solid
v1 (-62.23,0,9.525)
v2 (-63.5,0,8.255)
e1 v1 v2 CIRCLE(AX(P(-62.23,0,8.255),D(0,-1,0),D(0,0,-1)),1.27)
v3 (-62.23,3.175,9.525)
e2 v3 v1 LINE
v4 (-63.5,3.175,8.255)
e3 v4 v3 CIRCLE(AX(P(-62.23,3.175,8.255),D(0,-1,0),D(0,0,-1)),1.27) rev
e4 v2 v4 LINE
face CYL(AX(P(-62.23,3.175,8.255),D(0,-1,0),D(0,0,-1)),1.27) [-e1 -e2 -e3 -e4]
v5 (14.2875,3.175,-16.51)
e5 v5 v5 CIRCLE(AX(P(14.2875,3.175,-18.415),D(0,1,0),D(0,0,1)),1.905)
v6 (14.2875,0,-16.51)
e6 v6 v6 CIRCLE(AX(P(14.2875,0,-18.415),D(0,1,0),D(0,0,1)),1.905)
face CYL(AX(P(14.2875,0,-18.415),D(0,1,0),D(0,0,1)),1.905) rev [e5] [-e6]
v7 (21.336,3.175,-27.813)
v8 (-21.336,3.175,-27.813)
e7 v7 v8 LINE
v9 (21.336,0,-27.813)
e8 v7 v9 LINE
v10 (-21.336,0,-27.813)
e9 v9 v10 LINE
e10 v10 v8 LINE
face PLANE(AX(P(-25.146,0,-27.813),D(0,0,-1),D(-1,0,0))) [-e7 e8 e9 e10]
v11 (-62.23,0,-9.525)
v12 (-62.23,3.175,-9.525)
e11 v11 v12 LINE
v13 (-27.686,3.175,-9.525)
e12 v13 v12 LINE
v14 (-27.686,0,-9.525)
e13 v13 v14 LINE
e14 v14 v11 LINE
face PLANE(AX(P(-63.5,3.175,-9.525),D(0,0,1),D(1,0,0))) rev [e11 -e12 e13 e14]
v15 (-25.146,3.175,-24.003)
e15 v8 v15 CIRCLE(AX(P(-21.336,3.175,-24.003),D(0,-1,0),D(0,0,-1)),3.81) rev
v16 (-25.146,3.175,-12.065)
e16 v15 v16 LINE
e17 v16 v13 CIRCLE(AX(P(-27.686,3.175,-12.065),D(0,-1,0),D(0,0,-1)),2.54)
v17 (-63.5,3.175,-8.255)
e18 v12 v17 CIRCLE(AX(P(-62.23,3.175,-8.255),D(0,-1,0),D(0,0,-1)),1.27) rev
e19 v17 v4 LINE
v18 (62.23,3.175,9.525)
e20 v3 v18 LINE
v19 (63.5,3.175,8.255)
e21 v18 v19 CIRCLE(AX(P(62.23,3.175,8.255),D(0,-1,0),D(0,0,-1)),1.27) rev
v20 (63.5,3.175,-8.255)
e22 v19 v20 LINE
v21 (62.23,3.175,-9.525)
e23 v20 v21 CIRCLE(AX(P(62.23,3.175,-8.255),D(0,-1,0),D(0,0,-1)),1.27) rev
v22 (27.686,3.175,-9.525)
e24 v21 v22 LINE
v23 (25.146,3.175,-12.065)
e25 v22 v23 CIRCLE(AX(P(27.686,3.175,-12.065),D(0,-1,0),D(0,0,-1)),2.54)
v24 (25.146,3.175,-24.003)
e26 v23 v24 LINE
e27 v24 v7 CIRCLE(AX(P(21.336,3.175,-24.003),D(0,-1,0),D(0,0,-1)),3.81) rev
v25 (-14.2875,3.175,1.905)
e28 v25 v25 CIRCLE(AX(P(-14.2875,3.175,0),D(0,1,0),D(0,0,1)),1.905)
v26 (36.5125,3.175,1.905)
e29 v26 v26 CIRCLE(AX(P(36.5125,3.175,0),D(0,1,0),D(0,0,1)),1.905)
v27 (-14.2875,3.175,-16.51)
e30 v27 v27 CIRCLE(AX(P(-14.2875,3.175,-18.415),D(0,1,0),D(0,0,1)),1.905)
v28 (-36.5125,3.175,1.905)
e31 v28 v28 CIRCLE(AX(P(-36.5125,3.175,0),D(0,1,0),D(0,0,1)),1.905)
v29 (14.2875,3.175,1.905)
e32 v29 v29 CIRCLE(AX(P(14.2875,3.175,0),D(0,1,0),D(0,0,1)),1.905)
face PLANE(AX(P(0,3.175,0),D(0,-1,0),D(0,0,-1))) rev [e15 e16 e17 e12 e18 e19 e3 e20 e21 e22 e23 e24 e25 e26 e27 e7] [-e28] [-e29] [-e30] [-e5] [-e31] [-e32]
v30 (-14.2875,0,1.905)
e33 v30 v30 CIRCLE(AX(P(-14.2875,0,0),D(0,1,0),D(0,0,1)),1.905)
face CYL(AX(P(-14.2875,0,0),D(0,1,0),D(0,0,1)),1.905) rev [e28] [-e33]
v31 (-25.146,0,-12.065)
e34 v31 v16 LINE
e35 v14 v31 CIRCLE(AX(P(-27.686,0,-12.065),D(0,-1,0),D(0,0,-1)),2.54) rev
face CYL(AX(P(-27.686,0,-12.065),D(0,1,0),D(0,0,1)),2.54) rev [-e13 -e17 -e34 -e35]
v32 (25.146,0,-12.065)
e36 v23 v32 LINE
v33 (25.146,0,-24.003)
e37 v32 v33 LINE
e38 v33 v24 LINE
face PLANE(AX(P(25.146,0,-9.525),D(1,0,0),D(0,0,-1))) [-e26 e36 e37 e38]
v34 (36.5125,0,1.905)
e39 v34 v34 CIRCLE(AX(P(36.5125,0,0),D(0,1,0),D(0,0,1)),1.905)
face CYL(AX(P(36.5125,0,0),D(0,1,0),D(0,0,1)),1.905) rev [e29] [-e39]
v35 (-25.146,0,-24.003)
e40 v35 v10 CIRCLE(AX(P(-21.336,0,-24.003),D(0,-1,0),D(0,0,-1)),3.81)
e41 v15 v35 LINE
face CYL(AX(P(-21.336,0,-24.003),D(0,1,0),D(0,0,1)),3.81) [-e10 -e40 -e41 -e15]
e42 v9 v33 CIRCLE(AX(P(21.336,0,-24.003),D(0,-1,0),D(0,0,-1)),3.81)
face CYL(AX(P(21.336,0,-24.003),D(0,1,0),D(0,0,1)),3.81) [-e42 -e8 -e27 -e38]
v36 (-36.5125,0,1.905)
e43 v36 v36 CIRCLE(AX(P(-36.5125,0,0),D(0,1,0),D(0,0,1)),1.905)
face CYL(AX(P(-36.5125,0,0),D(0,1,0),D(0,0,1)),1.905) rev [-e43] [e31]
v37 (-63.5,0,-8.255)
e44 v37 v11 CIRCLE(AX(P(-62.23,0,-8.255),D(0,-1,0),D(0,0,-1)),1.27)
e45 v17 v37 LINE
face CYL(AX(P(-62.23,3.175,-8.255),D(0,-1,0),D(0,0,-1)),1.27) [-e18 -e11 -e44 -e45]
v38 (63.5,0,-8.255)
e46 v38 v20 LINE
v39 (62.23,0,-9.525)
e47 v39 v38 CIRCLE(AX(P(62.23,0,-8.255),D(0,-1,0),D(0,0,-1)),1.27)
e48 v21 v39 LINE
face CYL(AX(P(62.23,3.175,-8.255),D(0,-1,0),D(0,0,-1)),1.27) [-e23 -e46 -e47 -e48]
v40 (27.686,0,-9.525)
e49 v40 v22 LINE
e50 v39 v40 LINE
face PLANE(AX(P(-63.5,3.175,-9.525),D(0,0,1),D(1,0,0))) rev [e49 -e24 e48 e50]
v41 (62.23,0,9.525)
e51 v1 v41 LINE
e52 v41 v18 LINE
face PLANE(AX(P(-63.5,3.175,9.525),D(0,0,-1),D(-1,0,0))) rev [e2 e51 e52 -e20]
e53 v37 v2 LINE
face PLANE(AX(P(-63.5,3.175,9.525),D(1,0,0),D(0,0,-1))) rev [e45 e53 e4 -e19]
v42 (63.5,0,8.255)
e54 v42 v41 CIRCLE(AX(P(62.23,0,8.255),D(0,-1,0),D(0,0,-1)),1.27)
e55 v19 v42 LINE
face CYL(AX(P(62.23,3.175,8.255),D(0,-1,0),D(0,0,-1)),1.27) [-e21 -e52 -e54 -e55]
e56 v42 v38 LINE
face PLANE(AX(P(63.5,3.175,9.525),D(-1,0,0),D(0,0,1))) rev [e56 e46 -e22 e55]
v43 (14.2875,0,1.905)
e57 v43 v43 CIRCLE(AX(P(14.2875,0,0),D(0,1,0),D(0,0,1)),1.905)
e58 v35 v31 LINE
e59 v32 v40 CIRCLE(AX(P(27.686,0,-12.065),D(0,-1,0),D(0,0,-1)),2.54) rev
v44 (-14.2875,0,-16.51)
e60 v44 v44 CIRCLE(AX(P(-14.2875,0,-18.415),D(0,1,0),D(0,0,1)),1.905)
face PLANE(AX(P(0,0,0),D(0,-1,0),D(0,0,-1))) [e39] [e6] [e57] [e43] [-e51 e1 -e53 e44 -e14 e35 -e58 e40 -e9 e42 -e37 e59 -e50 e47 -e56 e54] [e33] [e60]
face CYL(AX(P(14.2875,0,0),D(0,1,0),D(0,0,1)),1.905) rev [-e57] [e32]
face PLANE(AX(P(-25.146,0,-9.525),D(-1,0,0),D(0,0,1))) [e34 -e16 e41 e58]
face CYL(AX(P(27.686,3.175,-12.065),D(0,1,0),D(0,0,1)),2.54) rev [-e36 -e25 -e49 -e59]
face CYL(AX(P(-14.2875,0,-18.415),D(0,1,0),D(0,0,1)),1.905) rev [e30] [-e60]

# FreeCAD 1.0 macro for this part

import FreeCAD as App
import Part
import Sketcher

V = App.Vector
Q = App.Units.Quantity


def edges_at(feature, points):
    """Names of the edges that pass closest to the given points."""
    edges = feature.Shape.Edges
    near = lambda p: min(range(len(edges)), key=lambda i: edges[i].distToShape(Part.Vertex(*p))[0])
    return sorted({f"Edge{near(p) + 1}" for p in points})


def add_polygon(sketch, points):
    """Adds a closed chain of lines whose ends are joined by coincident constraints."""
    first, n = sketch.GeometryCount, len(points)
    for a, b in zip(points, points[1:] + points[:1]):
        sketch.addGeometry(Part.LineSegment(App.Vector(*a, 0), App.Vector(*b, 0)), False)
    for i in range(n):
        sketch.addConstraint(Sketcher.Constraint("Coincident", first + i, 2, first + (i + 1) % n, 1))

doc = App.newDocument("Part")
params = doc.addObject("Spreadsheet::Sheet", "Params")
for row, (alias, value) in enumerate([
    ("sketch1_width", "5 in"),
    ("sketch1_height", "0.75 in"),
    ("pad1_length", "0.125 in"),
    ("sketch2_width", "1.98 in"),
    ("sketch2_height", "0.72 in"),
    ("pad2_length", "0.125 in"),
    ("sketch3_diameter", "0.15 in"),
    ("fillet_radius", "0.05 in"),
    ("fillet2_radius", "0.1 in"),
    ("fillet3_radius", "0.15 in"),
], start=1):
    params.set(f"A{row}", alias)
    params.set(f"B{row}", "=" + value)
    params.setAlias(f"B{row}", alias)

body = doc.addObject("PartDesign::Body", "Body")

# Sketch on XZ plane
sketch1 = doc.addObject("Sketcher::SketchObject", "Sketch")
body.addObject(sketch1)
sketch1.AttachmentSupport = (doc.XZ_Plane, [""])
sketch1.MapMode = "FlatFace"
add_polygon(sketch1, [(-64, -10), (-64, 10), (64, 10), (64, -10)])  # lines 0-3
sketch1.addConstraint(Sketcher.Constraint("Vertical", 0))
sketch1.addConstraint(Sketcher.Constraint("Horizontal", 1))
sketch1.addConstraint(Sketcher.Constraint("Vertical", 2))
sketch1.addConstraint(Sketcher.Constraint("Horizontal", 3))
sketch1.addConstraint(Sketcher.Constraint("Symmetric", 0, 2, 2, 2, -1, 1))
sketch1.addConstraint(Sketcher.Constraint("DistanceX", 1, 1, 1, 2, Q("5 in")))
sketch1.addConstraint(Sketcher.Constraint("DistanceY", 0, 1, 0, 2, Q("0.75 in")))
sketch1.setExpression("Constraints[9]", "Params.sketch1_width")
sketch1.setExpression("Constraints[10]", "Params.sketch1_height")
pad1 = doc.addObject("PartDesign::Pad", "Pad")
body.addObject(pad1)
pad1.Profile = sketch1
pad1.setExpression("Length", "Params.pad1_length")
pad1.Reversed = True

# Sketch on XZ plane
sketch2 = doc.addObject("Sketcher::SketchObject", "Sketch001")
body.addObject(sketch2)
sketch2.AttachmentSupport = (doc.XZ_Plane, [""])
sketch2.MapMode = "FlatFace"
sketch2.AttachmentOffset = App.Placement(V(0, 0, -0.125 * 25.4), App.Rotation())
add_polygon(sketch2, [(-25, -28), (-25, -10), (25, -10), (25, -28)])  # lines 0-3
sketch2.addConstraint(Sketcher.Constraint("Vertical", 0))
sketch2.addConstraint(Sketcher.Constraint("Horizontal", 1))
sketch2.addConstraint(Sketcher.Constraint("Vertical", 2))
sketch2.addConstraint(Sketcher.Constraint("Horizontal", 3))
sketch2.addConstraint(Sketcher.Constraint("DistanceX", 1, 1, 1, 2, Q("1.98 in")))
sketch2.addConstraint(Sketcher.Constraint("DistanceY", 0, 1, 0, 2, Q("0.72 in")))
sketch2.addConstraint(Sketcher.Constraint("DistanceX", 0, 2, -1, 1, Q("0.99 in")))
sketch2.addConstraint(Sketcher.Constraint("DistanceY", 0, 2, -1, 1, Q("0.375 in")))
sketch2.setExpression("Constraints[8]", "Params.sketch2_width")
sketch2.setExpression("Constraints[9]", "Params.sketch2_height")
pad2 = doc.addObject("PartDesign::Pad", "Pad001")
body.addObject(pad2)
pad2.Profile = sketch2
pad2.setExpression("Length", "Params.pad2_length")

# Sketch on XZ plane
sketch3 = doc.addObject("Sketcher::SketchObject", "Sketch002")
body.addObject(sketch3)
sketch3.AttachmentSupport = (doc.XZ_Plane, [""])
sketch3.MapMode = "FlatFace"
sketch3.AttachmentOffset = App.Placement(V(0, 0, -0.125 * 25.4), App.Rotation())
sketch3.addGeometry(Part.Circle(V(-36.5, 0, 0), V(0, 0, 1), 1.9), False)
sketch3.addGeometry(Part.Circle(V(36.5, 0, 0), V(0, 0, 1), 1.9), False)
sketch3.addGeometry(Part.Circle(V(-14.3, 0, 0), V(0, 0, 1), 1.9), False)
sketch3.addGeometry(Part.Circle(V(14.3, 0, 0), V(0, 0, 1), 1.9), False)
sketch3.addGeometry(Part.Circle(V(-14.3, -18.4, 0), V(0, 0, 1), 1.9), False)
sketch3.addGeometry(Part.Circle(V(14.3, -18.4, 0), V(0, 0, 1), 1.9), False)
sketch3.addConstraint(Sketcher.Constraint("Equal", 0, 1))
sketch3.addConstraint(Sketcher.Constraint("Equal", 1, 2))
sketch3.addConstraint(Sketcher.Constraint("Equal", 2, 3))
sketch3.addConstraint(Sketcher.Constraint("Equal", 3, 4))
sketch3.addConstraint(Sketcher.Constraint("Equal", 4, 5))
sketch3.addConstraint(Sketcher.Constraint("Symmetric", 0, 3, 1, 3, -1, 1))
sketch3.addConstraint(Sketcher.Constraint("Symmetric", 2, 3, 3, 3, -1, 1))
sketch3.addConstraint(Sketcher.Constraint("Symmetric", 4, 3, 5, 3, -2))
sketch3.addConstraint(Sketcher.Constraint("PointOnObject", 0, 3, -1))
sketch3.addConstraint(Sketcher.Constraint("PointOnObject", 2, 3, -1))
sketch3.addConstraint(Sketcher.Constraint("Vertical", 2, 3, 4, 3))
sketch3.addConstraint(Sketcher.Constraint("Diameter", 0, Q("0.15 in")))
sketch3.addConstraint(Sketcher.Constraint("DistanceX", 2, 3, 1, 3, Q("2 in")))
sketch3.addConstraint(Sketcher.Constraint("DistanceX", 0, 3, -1, 1, Q("1.4375 in")))
sketch3.addConstraint(Sketcher.Constraint("DistanceY", 4, 3, -1, 1, Q("0.725 in")))
sketch3.setExpression("Constraints[11]", "Params.sketch3_diameter")
pocket1 = doc.addObject("PartDesign::Pocket", "Pocket")
body.addObject(pocket1)
pocket1.Profile = sketch3
pocket1.Type = "ThroughAll"
pocket1.Reversed = True
doc.recompute()

fillet = doc.addObject("PartDesign::Fillet", "Fillet")
body.addObject(fillet)
fillet.Base = (pocket1, edges_at(pocket1, [
    (63.5, 1.587, 9.525),
    (-63.5, 1.587, 9.525),
    (-63.5, 1.587, -9.525),
    (63.5, 1.587, -9.525),
]))
fillet.setExpression("Radius", "Params.fillet_radius")
doc.recompute()

fillet2 = doc.addObject("PartDesign::Fillet", "Fillet001")
body.addObject(fillet2)
fillet2.Base = (fillet, edges_at(fillet, [(-25.146, 1.587, -9.525), (25.146, 1.587, -9.525)]))
fillet2.setExpression("Radius", "Params.fillet2_radius")
doc.recompute()

fillet3 = doc.addObject("PartDesign::Fillet", "Fillet002")
body.addObject(fillet3)
fillet3.Base = (fillet2, edges_at(fillet2, [(-25.146, 1.587, -27.813), (25.146, 1.587, -27.813)]))
fillet3.setExpression("Radius", "Params.fillet3_radius")

doc.recompute()
